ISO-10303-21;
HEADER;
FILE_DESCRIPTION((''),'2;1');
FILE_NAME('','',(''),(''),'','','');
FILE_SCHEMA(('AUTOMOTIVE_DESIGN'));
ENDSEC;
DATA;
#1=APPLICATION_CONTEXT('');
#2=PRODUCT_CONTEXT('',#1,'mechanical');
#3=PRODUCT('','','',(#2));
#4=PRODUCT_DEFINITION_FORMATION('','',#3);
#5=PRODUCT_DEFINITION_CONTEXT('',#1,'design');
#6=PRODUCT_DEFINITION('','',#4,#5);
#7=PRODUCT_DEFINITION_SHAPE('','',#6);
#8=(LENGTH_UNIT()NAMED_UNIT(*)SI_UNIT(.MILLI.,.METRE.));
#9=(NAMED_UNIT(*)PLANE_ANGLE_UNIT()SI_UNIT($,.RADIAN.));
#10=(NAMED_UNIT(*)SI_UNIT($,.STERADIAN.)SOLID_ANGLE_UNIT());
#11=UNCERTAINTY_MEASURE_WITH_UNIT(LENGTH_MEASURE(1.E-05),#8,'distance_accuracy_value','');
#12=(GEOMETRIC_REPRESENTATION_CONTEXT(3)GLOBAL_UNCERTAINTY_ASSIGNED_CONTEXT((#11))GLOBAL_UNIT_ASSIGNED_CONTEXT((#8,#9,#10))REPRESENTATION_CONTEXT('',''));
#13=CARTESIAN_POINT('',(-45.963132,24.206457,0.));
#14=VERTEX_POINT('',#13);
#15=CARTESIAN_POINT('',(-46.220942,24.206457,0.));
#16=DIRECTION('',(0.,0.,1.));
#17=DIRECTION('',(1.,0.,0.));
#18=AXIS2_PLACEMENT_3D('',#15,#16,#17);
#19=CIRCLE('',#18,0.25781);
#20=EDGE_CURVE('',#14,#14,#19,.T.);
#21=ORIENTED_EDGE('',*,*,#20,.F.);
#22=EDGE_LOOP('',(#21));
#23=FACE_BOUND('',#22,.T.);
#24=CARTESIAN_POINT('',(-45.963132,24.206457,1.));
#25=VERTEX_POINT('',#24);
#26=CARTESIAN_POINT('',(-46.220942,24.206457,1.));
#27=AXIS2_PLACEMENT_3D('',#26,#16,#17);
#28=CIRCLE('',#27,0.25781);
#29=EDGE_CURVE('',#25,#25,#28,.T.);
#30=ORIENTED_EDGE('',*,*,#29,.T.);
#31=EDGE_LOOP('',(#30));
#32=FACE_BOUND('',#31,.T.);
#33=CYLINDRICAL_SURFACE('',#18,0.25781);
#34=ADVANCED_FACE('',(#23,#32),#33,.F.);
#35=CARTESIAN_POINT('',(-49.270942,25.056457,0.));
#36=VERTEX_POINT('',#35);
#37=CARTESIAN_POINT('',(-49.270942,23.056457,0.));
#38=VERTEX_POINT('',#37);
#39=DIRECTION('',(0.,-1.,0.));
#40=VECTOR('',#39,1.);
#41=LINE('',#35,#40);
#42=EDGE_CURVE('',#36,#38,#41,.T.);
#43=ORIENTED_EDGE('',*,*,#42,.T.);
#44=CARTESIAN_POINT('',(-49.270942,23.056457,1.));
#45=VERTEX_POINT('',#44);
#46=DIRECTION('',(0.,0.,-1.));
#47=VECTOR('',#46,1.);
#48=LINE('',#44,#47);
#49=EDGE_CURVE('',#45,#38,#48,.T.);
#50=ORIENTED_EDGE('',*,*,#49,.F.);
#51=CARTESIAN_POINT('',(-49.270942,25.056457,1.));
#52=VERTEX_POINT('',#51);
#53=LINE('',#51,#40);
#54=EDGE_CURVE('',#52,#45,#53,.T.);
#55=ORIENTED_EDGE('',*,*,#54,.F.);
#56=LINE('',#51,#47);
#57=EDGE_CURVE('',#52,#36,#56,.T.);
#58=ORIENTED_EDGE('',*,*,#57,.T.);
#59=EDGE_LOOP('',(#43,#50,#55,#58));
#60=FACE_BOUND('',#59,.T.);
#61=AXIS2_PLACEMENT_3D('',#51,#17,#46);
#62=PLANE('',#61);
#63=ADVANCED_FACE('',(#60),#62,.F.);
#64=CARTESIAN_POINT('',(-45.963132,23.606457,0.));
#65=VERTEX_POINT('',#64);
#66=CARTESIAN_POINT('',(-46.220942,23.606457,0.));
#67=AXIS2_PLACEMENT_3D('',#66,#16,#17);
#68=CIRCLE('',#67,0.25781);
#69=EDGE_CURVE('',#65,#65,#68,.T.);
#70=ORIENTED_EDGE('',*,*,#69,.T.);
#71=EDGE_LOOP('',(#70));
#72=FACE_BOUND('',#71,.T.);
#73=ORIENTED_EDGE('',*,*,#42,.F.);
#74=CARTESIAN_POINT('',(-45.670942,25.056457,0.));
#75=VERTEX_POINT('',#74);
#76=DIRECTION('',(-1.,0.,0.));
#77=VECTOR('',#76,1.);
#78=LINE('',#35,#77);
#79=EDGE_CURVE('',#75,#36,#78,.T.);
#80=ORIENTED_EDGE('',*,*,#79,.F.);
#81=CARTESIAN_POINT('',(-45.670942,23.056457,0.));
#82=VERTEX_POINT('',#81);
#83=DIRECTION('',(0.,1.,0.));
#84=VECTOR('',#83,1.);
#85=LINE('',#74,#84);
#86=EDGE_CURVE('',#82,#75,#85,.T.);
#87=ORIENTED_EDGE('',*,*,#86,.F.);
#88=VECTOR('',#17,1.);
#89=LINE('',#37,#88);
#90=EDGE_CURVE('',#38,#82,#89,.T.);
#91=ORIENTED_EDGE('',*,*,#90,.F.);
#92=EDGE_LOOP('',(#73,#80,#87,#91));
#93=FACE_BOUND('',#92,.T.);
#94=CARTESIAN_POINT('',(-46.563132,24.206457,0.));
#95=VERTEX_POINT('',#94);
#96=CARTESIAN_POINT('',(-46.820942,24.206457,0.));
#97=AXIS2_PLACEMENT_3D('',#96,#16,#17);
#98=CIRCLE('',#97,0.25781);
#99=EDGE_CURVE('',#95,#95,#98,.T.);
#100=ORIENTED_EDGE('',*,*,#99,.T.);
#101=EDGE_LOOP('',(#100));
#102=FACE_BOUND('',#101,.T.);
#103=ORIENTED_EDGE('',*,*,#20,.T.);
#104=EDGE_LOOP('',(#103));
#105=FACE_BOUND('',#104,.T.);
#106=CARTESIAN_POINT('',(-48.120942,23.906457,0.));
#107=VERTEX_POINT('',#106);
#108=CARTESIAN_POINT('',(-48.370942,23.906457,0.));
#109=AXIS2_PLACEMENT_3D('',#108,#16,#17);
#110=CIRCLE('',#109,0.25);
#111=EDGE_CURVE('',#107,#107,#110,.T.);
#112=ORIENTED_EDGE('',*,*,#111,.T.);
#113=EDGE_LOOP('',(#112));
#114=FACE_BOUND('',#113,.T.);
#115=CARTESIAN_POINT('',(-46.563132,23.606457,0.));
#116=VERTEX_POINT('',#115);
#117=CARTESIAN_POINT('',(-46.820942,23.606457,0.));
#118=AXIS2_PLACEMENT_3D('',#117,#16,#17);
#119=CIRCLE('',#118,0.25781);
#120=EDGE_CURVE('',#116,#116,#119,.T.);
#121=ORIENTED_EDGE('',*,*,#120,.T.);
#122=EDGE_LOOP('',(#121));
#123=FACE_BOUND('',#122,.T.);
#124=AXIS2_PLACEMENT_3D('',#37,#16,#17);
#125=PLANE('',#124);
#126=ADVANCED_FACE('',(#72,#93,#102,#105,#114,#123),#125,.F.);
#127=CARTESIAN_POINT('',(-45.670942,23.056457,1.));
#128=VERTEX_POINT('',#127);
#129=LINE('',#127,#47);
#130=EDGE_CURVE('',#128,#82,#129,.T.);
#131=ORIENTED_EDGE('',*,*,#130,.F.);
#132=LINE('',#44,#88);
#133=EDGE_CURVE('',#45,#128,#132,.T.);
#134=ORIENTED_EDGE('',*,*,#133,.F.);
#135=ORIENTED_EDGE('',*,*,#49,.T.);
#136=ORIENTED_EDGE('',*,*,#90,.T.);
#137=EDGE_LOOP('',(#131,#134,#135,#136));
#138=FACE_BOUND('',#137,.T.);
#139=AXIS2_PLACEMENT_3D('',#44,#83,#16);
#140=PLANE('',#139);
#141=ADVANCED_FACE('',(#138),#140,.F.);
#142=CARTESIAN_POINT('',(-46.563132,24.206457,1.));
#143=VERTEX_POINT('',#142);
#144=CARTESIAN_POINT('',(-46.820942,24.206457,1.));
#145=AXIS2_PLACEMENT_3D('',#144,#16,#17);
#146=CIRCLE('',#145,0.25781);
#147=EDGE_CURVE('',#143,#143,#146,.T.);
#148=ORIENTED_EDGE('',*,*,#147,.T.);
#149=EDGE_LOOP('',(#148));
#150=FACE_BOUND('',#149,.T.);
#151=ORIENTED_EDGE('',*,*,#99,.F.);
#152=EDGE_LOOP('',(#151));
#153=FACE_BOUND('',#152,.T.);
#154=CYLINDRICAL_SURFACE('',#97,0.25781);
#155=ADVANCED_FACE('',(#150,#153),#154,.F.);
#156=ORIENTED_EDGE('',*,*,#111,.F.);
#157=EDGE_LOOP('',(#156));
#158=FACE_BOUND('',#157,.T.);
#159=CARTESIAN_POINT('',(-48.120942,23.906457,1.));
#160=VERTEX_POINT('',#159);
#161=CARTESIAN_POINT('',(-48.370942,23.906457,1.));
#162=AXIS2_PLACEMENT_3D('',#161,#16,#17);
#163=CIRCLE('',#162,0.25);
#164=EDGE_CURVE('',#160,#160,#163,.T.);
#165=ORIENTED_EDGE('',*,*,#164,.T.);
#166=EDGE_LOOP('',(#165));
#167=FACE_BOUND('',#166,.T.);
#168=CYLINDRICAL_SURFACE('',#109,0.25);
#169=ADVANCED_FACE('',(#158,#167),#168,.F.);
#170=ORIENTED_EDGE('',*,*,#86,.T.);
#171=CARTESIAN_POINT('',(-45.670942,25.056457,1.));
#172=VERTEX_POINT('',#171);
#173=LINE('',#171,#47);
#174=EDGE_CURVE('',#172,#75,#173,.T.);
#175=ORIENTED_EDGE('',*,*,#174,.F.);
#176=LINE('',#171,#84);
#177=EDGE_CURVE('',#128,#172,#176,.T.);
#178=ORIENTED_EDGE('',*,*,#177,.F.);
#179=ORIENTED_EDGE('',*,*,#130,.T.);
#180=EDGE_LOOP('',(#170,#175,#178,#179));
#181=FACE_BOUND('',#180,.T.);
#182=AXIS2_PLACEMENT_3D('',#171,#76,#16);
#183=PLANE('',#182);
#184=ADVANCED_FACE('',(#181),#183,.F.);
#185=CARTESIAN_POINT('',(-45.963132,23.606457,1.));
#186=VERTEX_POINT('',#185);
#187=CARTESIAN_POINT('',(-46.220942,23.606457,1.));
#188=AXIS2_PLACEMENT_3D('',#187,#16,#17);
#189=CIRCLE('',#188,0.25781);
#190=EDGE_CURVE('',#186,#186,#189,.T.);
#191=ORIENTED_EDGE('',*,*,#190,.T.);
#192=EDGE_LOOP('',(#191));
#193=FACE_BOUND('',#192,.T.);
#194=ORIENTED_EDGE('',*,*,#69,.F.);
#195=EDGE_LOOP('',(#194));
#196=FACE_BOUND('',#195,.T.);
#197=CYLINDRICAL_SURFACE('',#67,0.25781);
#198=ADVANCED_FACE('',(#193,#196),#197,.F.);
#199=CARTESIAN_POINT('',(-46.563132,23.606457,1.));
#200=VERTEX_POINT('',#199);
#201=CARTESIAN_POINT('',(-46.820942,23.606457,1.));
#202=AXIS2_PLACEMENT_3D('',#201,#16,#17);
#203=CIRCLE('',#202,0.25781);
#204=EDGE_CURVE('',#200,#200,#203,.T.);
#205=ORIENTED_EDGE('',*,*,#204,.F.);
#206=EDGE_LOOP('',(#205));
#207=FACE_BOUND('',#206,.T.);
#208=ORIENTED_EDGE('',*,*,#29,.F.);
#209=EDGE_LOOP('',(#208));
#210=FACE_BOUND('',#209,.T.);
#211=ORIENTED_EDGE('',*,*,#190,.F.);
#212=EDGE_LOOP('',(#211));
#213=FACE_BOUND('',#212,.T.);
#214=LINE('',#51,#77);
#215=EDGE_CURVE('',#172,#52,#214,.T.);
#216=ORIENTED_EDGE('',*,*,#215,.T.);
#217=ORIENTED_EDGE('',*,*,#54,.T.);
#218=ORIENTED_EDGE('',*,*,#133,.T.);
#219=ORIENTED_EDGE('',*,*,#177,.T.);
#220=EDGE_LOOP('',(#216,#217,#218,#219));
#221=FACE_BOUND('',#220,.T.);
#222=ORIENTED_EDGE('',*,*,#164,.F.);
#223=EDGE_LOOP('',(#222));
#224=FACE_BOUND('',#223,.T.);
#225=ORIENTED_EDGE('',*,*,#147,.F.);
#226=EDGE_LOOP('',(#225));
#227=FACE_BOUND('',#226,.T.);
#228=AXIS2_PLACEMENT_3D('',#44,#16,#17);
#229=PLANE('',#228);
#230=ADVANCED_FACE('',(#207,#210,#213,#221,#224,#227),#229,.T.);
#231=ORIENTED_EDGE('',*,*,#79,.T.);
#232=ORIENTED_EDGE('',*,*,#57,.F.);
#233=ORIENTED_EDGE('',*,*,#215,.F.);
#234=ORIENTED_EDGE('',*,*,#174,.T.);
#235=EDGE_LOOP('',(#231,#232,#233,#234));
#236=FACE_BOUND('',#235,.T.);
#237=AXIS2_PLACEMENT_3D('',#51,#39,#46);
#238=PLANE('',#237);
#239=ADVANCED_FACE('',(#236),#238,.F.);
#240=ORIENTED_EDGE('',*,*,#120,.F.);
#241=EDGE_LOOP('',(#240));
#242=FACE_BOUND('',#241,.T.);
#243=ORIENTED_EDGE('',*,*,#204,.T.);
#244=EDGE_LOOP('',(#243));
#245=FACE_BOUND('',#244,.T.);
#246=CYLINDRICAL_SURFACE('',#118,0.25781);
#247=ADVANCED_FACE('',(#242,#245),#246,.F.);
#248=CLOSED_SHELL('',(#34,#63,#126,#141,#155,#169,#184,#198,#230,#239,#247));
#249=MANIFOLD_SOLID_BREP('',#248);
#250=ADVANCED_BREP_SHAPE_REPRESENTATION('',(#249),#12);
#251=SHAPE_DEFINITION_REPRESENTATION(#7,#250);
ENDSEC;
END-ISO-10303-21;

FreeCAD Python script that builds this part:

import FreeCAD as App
import Part
import Sketcher
Q = App.Units.Quantity

doc = App.newDocument("Part")
body = doc.addObject("PartDesign::Body", "Body")

# Sketch on XY plane
sketch1 = body.newObject("Sketcher::SketchObject", "Sketch")
sketch1.AttachmentSupport = (doc.getObject("XY_Plane"), [""])
sketch1.MapMode = "FlatFace"
sketch1.addGeometry([
    Part.LineSegment(App.Vector(-49.270942, 25.056457, 0), App.Vector(-49.270942, 23.056457, 0)),
    Part.LineSegment(App.Vector(-49.270942, 23.056457, 0), App.Vector(-45.670942, 23.056457, 0)),
    Part.LineSegment(App.Vector(-45.670942, 23.056457, 0), App.Vector(-45.670942, 25.056457, 0)),
    Part.LineSegment(App.Vector(-45.670942, 25.056457, 0), App.Vector(-49.270942, 25.056457, 0)),
], False)
sketch1.addConstraint([
    Sketcher.Constraint("Coincident", 0, 2, 1, 1),
    Sketcher.Constraint("Coincident", 1, 2, 2, 1),
    Sketcher.Constraint("Coincident", 2, 2, 3, 1),
    Sketcher.Constraint("Coincident", 3, 2, 0, 1),
    Sketcher.Constraint("Vertical", 0),
    Sketcher.Constraint("Horizontal", 1),
    Sketcher.Constraint("Vertical", 2),
    Sketcher.Constraint("Horizontal", 3),
    Sketcher.Constraint("DistanceY", 0, 2, 0, 1, Q("2 mm")),
    Sketcher.Constraint("DistanceX", 1, 1, 1, 2, Q("3.6 mm")),
    Sketcher.Constraint("DistanceX", 0, 2, -1, 1, Q("49.270942 mm")),
    Sketcher.Constraint("DistanceY", -1, 1, 0, 2, Q("23.056457 mm")),
])
pad1 = body.newObject("PartDesign::Pad", "Pad")
pad1.Profile = sketch1
pad1.Length = 1

# Sketch on XY plane
sketch2 = body.newObject("Sketcher::SketchObject", "Sketch001")
sketch2.AttachmentSupport = (doc.getObject("XY_Plane"), [""])
sketch2.MapMode = "FlatFace"
sketch2.AttachmentOffset = App.Placement(App.Vector(0, 0, 1), App.Rotation())
sketch2.addGeometry(Part.Circle(App.Vector(-48.370942, 23.906457, 0), App.Vector(0, 0, 1), 0.25), False)
sketch2.addConstraint([
    Sketcher.Constraint("Diameter", 0, Q("0.5 mm")),
    Sketcher.Constraint("DistanceX", 0, 3, -1, 1, Q("48.370942 mm")),
    Sketcher.Constraint("DistanceY", -1, 1, 0, 3, Q("23.906457 mm")),
])
pocket1 = body.newObject("PartDesign::Pocket", "Pocket")
pocket1.Profile = sketch2
pocket1.Type = "ThroughAll"

# Sketch on XY plane
sketch3 = body.newObject("Sketcher::SketchObject", "Sketch002")
sketch3.AttachmentSupport = (doc.getObject("XY_Plane"), [""])
sketch3.MapMode = "FlatFace"
sketch3.AttachmentOffset = App.Placement(App.Vector(0, 0, 1), App.Rotation())
sketch3.addGeometry([
    Part.Circle(App.Vector(-46.820942, 24.206457, 0), App.Vector(0, 0, 1), 0.25781),
    Part.Circle(App.Vector(-46.820942, 23.606457, 0), App.Vector(0, 0, 1), 0.25781),
    Part.Circle(App.Vector(-46.220942, 23.606457, 0), App.Vector(0, 0, 1), 0.25781),
    Part.Circle(App.Vector(-46.220942, 24.206457, 0), App.Vector(0, 0, 1), 0.25781),
], False)
sketch3.addConstraint([
    Sketcher.Constraint("Equal", 0, 1),
    Sketcher.Constraint("Equal", 1, 2),
    Sketcher.Constraint("Equal", 2, 3),
    Sketcher.Constraint("Horizontal", 1, 3, 2, 3),
    Sketcher.Constraint("Horizontal", 0, 3, 3, 3),
    Sketcher.Constraint("Vertical", 0, 3, 1, 3),
    Sketcher.Constraint("Vertical", 2, 3, 3, 3),
    Sketcher.Constraint("DistanceY", 1, 3, 0, 3, Q("0.6 mm")),
    Sketcher.Constraint("DistanceX", 1, 3, 2, 3, Q("0.6 mm")),
    Sketcher.Constraint("Diameter", 0, Q("0.51562 mm")),
    Sketcher.Constraint("DistanceX", 0, 3, -1, 1, Q("46.820942 mm")),
    Sketcher.Constraint("DistanceY", -1, 1, 0, 3, Q("24.206457 mm")),
])
pocket2 = body.newObject("PartDesign::Pocket", "Pocket001")
pocket2.Profile = sketch3
pocket2.Type = "ThroughAll"

doc.recompute()
